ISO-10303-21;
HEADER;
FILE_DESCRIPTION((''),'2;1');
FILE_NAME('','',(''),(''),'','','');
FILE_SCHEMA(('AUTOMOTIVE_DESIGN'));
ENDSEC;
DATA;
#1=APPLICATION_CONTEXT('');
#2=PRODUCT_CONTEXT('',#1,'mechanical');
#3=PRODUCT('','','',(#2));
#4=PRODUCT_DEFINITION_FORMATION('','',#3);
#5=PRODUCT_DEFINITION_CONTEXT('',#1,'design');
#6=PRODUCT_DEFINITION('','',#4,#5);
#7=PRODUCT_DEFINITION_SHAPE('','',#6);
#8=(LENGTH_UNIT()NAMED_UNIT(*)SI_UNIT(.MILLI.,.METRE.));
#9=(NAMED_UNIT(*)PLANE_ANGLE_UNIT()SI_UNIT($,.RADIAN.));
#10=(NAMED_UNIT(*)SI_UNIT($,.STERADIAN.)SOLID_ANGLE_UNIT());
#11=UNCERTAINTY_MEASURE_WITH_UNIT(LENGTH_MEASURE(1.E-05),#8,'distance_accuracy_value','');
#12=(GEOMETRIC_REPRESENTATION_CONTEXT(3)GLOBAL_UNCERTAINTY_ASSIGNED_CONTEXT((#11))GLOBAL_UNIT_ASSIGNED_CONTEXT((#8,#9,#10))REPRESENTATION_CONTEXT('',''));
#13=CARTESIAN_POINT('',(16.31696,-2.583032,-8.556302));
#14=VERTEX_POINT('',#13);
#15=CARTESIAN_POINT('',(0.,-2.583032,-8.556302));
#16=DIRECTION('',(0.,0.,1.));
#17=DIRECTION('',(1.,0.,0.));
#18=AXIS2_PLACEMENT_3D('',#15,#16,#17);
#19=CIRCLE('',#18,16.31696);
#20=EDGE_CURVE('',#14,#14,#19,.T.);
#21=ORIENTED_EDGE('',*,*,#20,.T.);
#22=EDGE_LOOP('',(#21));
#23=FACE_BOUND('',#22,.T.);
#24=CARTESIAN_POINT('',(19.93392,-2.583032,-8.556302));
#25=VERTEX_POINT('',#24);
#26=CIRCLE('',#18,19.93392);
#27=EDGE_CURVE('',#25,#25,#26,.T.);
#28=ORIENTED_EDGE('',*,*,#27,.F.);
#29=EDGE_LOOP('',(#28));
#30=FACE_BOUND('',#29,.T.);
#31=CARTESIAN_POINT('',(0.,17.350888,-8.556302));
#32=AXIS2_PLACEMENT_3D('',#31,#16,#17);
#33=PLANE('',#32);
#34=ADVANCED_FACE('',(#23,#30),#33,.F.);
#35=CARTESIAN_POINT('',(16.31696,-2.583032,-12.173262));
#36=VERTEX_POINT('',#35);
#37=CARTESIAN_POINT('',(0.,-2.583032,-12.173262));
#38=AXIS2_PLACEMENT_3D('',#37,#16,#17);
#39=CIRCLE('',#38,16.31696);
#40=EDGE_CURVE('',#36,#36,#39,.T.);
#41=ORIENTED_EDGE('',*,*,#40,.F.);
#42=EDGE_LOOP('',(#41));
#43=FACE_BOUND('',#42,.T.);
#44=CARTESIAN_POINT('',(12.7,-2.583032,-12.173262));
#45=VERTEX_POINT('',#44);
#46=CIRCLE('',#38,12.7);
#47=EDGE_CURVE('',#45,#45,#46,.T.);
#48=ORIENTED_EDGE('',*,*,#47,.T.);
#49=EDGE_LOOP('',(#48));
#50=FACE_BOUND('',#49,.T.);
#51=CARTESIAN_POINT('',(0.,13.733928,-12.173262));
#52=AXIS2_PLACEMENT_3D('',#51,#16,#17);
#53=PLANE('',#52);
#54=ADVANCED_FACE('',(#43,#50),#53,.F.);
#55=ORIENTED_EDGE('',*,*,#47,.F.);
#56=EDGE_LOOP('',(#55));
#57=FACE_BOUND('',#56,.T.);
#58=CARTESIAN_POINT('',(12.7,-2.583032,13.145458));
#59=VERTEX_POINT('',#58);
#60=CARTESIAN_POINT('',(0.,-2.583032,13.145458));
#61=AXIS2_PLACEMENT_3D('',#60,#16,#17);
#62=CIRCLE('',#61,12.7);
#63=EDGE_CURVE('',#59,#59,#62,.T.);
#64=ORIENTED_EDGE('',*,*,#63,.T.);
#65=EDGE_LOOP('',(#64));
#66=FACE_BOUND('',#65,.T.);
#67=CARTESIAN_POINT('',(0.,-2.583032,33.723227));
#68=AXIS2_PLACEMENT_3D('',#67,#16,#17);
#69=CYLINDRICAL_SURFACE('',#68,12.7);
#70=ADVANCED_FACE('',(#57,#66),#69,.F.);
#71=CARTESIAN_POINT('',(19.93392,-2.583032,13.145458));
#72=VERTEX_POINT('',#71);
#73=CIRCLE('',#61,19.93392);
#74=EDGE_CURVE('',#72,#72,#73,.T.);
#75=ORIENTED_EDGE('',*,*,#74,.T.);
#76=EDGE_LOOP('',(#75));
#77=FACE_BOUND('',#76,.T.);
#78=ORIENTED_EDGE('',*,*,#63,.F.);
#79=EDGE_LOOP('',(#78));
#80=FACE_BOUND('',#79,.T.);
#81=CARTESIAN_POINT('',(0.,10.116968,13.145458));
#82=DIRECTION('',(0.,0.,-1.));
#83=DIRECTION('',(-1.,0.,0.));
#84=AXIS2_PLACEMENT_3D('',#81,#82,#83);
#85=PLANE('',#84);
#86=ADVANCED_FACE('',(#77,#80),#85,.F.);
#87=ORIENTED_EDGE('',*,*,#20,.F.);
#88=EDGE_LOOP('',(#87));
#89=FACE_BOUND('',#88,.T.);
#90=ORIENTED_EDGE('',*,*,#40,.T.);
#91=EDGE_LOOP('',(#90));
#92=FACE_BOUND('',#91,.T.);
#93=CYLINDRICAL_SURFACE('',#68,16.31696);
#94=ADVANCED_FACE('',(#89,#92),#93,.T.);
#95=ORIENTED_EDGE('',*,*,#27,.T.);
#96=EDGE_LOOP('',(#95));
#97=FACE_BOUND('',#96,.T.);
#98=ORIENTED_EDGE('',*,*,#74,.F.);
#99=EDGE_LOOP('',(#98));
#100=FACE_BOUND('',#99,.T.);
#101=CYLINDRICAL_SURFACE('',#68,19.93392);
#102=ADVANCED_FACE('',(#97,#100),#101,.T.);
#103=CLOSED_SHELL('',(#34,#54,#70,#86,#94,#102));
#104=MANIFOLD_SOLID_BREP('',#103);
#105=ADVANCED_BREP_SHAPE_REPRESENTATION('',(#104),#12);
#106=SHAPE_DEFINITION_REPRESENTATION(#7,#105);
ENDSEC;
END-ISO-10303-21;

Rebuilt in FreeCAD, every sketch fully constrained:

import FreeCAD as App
import Part
import Sketcher
from FreeCAD import Vector

doc = App.newDocument("Part")
params = doc.addObject("Spreadsheet::Sheet", "Params")
for row, (alias, value) in enumerate([
    ("revolution_angle", "360 deg"),
], start=1):
    params.set(f"A{row}", alias)
    params.set(f"B{row}", "=" + value)
    params.setAlias(f"B{row}", alias)

body = doc.addObject("PartDesign::Body", "Body")

sketch1 = body.newObject("Sketcher::SketchObject", "Sketch")
sketch1.AttachmentSupport = (doc.getObject("YZ_Plane"), [""])
sketch1.MapMode = "FlatFace"
sketch1.addGeometry([
    Part.LineSegment(Vector(17.350888, 13.145458, 0), Vector(10.116968, 13.145458, 0)),
    Part.LineSegment(Vector(10.116968, 13.145458, 0), Vector(10.116968, -12.173262, 0)),
    Part.LineSegment(Vector(10.116968, -12.173262, 0), Vector(13.733928, -12.173262, 0)),
    Part.LineSegment(Vector(13.733928, -12.173262, 0), Vector(13.733928, -8.556302, 0)),
    Part.LineSegment(Vector(13.733928, -8.556302, 0), Vector(17.350888, -8.556302, 0)),
    Part.LineSegment(Vector(17.350888, -8.556302, 0), Vector(17.350888, 13.145458, 0)),
], False)
sketch1.addGeometry(Part.LineSegment(Vector(-2.583032, 13.145458, 0), Vector(-2.583032, -12.173262, 0)), True)
sketch1.addConstraint([
    Sketcher.Constraint("Coincident", 0, 2, 1, 1),
    Sketcher.Constraint("Coincident", 1, 2, 2, 1),
    Sketcher.Constraint("Coincident", 2, 2, 3, 1),
    Sketcher.Constraint("Coincident", 3, 2, 4, 1),
    Sketcher.Constraint("Coincident", 4, 2, 5, 1),
    Sketcher.Constraint("Coincident", 5, 2, 0, 1),
    Sketcher.Constraint("Horizontal", 0),
    Sketcher.Constraint("Vertical", 1),
    Sketcher.Constraint("Horizontal", 2),
    Sketcher.Constraint("Vertical", 3),
    Sketcher.Constraint("Horizontal", 4),
    Sketcher.Constraint("Vertical", 5),
    Sketcher.Constraint("Vertical", 6),
    Sketcher.Constraint("Horizontal", 5, 2, 6, 1),
    Sketcher.Constraint("Horizontal", 2, 2, 6, 2),
    Sketcher.Constraint("Equal", 2, 4),
    Sketcher.Constraint("Equal", 4, 3),
    Sketcher.Constraint("DistanceX", 6, 1, 0, 2, 12.7),
    Sketcher.Constraint("DistanceX", 0, 2, 0, 1, 7.23392),
    Sketcher.Constraint("DistanceY", 1, 2, 1, 1, 25.31872),
    Sketcher.Constraint("DistanceX", -1, 1, 0, 2, 10.116968),
    Sketcher.Constraint("DistanceY", -1, 1, 0, 2, 13.145458),
])
revolution = body.newObject("PartDesign::Revolution", "Revolution")
revolution.Profile = sketch1
revolution.ReferenceAxis = (sketch1, ["Axis0"])
revolution.setExpression("Angle", "Params.revolution_angle")

doc.recompute()
